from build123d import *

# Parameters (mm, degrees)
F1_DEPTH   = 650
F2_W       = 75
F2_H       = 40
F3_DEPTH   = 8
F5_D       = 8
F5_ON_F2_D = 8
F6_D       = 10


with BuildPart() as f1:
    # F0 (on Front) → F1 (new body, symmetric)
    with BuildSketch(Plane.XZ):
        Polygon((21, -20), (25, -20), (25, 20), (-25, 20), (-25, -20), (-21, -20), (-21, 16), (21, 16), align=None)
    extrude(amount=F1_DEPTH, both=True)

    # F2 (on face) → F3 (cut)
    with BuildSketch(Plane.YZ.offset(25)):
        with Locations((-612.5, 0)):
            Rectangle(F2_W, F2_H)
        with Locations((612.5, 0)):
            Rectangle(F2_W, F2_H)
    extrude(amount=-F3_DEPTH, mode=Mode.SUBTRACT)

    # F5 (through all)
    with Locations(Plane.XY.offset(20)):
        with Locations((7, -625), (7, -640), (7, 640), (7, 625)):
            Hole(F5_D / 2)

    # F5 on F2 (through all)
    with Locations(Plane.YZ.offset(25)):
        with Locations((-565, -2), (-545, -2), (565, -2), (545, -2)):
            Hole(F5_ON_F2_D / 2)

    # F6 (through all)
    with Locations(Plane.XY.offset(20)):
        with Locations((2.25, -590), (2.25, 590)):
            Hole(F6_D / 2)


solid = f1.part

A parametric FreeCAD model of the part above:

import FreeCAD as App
import Part
import Sketcher
from FreeCAD import Vector
Q = App.Units.Quantity


def add_polygon(sketch, points):
    """Adds a closed chain of lines whose ends are joined by coincident constraints."""
    first, n = sketch.GeometryCount, len(points)
    for a, b in zip(points, points[1:] + points[:1]):
        sketch.addGeometry(Part.LineSegment(App.Vector(*a, 0), App.Vector(*b, 0)), False)
    for i in range(n):
        sketch.addConstraint(Sketcher.Constraint("Coincident", first + i, 2, first + (i + 1) % n, 1))

doc = App.newDocument("Part")
body = doc.addObject("PartDesign::Body", "Body")

sketch1 = doc.addObject("Sketcher::SketchObject", "Sketch")
body.addObject(sketch1)
sketch1.AttachmentSupport = (doc.XZ_Plane, [""])
sketch1.MapMode = "FlatFace"
add_polygon(sketch1, [(21, -20), (25, -20), (25, 20), (-25, 20), (-25, -20), (-21, -20), (-21, 16), (21, 16)])
sketch1.addConstraint([
    Sketcher.Constraint("Horizontal", 0),
    Sketcher.Constraint("Vertical", 1),
    Sketcher.Constraint("Horizontal", 2),
    Sketcher.Constraint("Vertical", 3),
    Sketcher.Constraint("Horizontal", 4),
    Sketcher.Constraint("Vertical", 5),
    Sketcher.Constraint("Horizontal", 6),
    Sketcher.Constraint("Vertical", 7),
    Sketcher.Constraint("Symmetric", 0, 2, 2, 2, -1, 1),
    Sketcher.Constraint("Symmetric", 4, 2, 7, 2, -2),
    Sketcher.Constraint("DistanceX", 0, 1, 0, 2, Q("4 mm")),
    Sketcher.Constraint("DistanceX", 2, 2, 2, 1, Q("50 mm")),
    Sketcher.Constraint("DistanceY", 1, 1, 1, 2, Q("40 mm")),
    Sketcher.Constraint("DistanceY", 5, 1, 5, 2, Q("36 mm")),
])
pad1 = doc.addObject("PartDesign::Pad", "Pad")
body.addObject(pad1)
pad1.Profile = sketch1
pad1.Length = 1300
pad1.Midplane = True

sketch2 = doc.addObject("Sketcher::SketchObject", "Sketch001")
body.addObject(sketch2)
sketch2.AttachmentSupport = (doc.YZ_Plane, [""])
sketch2.MapMode = "FlatFace"
sketch2.AttachmentOffset = App.Placement(Vector(0, 0, 25), App.Rotation())
add_polygon(sketch2, [(-650, 20), (-650, -20), (-575, -20), (-575, 20)])
add_polygon(sketch2, [(575, 20), (575, -20), (650, -20), (650, 20)])
sketch2.addConstraint([
    Sketcher.Constraint("Vertical", 0),
    Sketcher.Constraint("Horizontal", 1),
    Sketcher.Constraint("Vertical", 2),
    Sketcher.Constraint("Horizontal", 3),
    Sketcher.Constraint("Vertical", 4),
    Sketcher.Constraint("Horizontal", 5),
    Sketcher.Constraint("Vertical", 6),
    Sketcher.Constraint("Horizontal", 7),
    Sketcher.Constraint("Symmetric", 2, 2, 4, 2, -1, 1),
    Sketcher.Constraint("Symmetric", 0, 2, 6, 2, -1, 1),
    Sketcher.Constraint("Horizontal", 1, 2, 4, 2),
    Sketcher.Constraint("DistanceX", 1, 1, 1, 2, Q("75 mm")),
    Sketcher.Constraint("DistanceY", 0, 2, 0, 1, Q("40 mm")),
    Sketcher.Constraint("DistanceX", 0, 2, -1, 1, Q("650 mm")),
])
pocket1 = doc.addObject("PartDesign::Pocket", "Pocket")
body.addObject(pocket1)
pocket1.Profile = sketch2
pocket1.Length = 8

sketch3 = doc.addObject("Sketcher::SketchObject", "Sketch002")
body.addObject(sketch3)
sketch3.AttachmentSupport = (doc.XY_Plane, [""])
sketch3.MapMode = "FlatFace"
sketch3.AttachmentOffset = App.Placement(Vector(0, 0, 20), App.Rotation())
sketch3.addGeometry([
    Part.Circle(Vector(7, -625, 0), Vector(0, 0, 1), 4),
    Part.Circle(Vector(7, -640, 0), Vector(0, 0, 1), 4),
    Part.Circle(Vector(7, 640, 0), Vector(0, 0, 1), 4),
    Part.Circle(Vector(7, 625, 0), Vector(0, 0, 1), 4),
], False)
sketch3.addConstraint([
    Sketcher.Constraint("Equal", 0, 1),
    Sketcher.Constraint("Equal", 1, 2),
    Sketcher.Constraint("Equal", 2, 3),
    Sketcher.Constraint("Symmetric", 1, 3, 2, 3, -1),
    Sketcher.Constraint("Symmetric", 0, 3, 3, 3, -1),
    Sketcher.Constraint("Vertical", 0, 3, 1, 3),
    Sketcher.Constraint("Diameter", 0, Q("8 mm")),
    Sketcher.Constraint("DistanceX", -1, 1, 0, 3, Q("7 mm")),
    Sketcher.Constraint("DistanceY", 0, 3, -1, 1, Q("625 mm")),
    Sketcher.Constraint("DistanceY", 1, 3, -1, 1, Q("640 mm")),
])
doc.recompute()
hole = doc.addObject("PartDesign::Hole", "Hole")
body.addObject(hole)
hole.Profile = sketch3
hole.ThreadType = "None"
hole.Diameter = 8
hole.DepthType = "ThroughAll"

sketch4 = doc.addObject("Sketcher::SketchObject", "Sketch003")
body.addObject(sketch4)
sketch4.AttachmentSupport = (doc.YZ_Plane, [""])
sketch4.MapMode = "FlatFace"
sketch4.AttachmentOffset = App.Placement(Vector(0, 0, 25), App.Rotation())
sketch4.addGeometry([
    Part.Circle(Vector(-565, -2, 0), Vector(0, 0, 1), 4),
    Part.Circle(Vector(-545, -2, 0), Vector(0, 0, 1), 4),
    Part.Circle(Vector(565, -2, 0), Vector(0, 0, 1), 4),
    Part.Circle(Vector(545, -2, 0), Vector(0, 0, 1), 4),
], False)
sketch4.addConstraint([
    Sketcher.Constraint("Equal", 0, 1),
    Sketcher.Constraint("Equal", 1, 2),
    Sketcher.Constraint("Equal", 2, 3),
    Sketcher.Constraint("Symmetric", 0, 3, 2, 3, -2),
    Sketcher.Constraint("Symmetric", 1, 3, 3, 3, -2),
    Sketcher.Constraint("Horizontal", 0, 3, 1, 3),
    Sketcher.Constraint("Diameter", 0, Q("8 mm")),
    Sketcher.Constraint("DistanceX", 0, 3, -1, 1, Q("565 mm")),
    Sketcher.Constraint("DistanceY", 0, 3, -1, 1, Q("2 mm")),
    Sketcher.Constraint("DistanceX", 1, 3, -1, 1, Q("545 mm")),
])
doc.recompute()
hole2 = doc.addObject("PartDesign::Hole", "Hole001")
body.addObject(hole2)
hole2.Profile = sketch4
hole2.ThreadType = "None"
hole2.Diameter = 8
hole2.DepthType = "ThroughAll"

sketch5 = doc.addObject("Sketcher::SketchObject", "Sketch004")
body.addObject(sketch5)
sketch5.AttachmentSupport = (doc.XY_Plane, [""])
sketch5.MapMode = "FlatFace"
sketch5.AttachmentOffset = App.Placement(Vector(0, 0, 20), App.Rotation())
sketch5.addGeometry([
    Part.Circle(Vector(2.25, -590, 0), Vector(0, 0, 1), 5),
    Part.Circle(Vector(2.25, 590, 0), Vector(0, 0, 1), 5),
], False)
sketch5.addConstraint([
    Sketcher.Constraint("Equal", 0, 1),
    Sketcher.Constraint("Symmetric", 0, 3, 1, 3, -1),
    Sketcher.Constraint("Diameter", 0, Q("10 mm")),
    Sketcher.Constraint("DistanceY", 0, 3, -1, 1, Q("590 mm")),
    Sketcher.Constraint("DistanceX", -1, 1, 0, 3, Q("2.25 mm")),
])
doc.recompute()
hole3 = doc.addObject("PartDesign::Hole", "Hole002")
body.addObject(hole3)
hole3.Profile = sketch5
hole3.ThreadType = "None"
hole3.Diameter = 10
hole3.DepthType = "ThroughAll"

doc.recompute()
